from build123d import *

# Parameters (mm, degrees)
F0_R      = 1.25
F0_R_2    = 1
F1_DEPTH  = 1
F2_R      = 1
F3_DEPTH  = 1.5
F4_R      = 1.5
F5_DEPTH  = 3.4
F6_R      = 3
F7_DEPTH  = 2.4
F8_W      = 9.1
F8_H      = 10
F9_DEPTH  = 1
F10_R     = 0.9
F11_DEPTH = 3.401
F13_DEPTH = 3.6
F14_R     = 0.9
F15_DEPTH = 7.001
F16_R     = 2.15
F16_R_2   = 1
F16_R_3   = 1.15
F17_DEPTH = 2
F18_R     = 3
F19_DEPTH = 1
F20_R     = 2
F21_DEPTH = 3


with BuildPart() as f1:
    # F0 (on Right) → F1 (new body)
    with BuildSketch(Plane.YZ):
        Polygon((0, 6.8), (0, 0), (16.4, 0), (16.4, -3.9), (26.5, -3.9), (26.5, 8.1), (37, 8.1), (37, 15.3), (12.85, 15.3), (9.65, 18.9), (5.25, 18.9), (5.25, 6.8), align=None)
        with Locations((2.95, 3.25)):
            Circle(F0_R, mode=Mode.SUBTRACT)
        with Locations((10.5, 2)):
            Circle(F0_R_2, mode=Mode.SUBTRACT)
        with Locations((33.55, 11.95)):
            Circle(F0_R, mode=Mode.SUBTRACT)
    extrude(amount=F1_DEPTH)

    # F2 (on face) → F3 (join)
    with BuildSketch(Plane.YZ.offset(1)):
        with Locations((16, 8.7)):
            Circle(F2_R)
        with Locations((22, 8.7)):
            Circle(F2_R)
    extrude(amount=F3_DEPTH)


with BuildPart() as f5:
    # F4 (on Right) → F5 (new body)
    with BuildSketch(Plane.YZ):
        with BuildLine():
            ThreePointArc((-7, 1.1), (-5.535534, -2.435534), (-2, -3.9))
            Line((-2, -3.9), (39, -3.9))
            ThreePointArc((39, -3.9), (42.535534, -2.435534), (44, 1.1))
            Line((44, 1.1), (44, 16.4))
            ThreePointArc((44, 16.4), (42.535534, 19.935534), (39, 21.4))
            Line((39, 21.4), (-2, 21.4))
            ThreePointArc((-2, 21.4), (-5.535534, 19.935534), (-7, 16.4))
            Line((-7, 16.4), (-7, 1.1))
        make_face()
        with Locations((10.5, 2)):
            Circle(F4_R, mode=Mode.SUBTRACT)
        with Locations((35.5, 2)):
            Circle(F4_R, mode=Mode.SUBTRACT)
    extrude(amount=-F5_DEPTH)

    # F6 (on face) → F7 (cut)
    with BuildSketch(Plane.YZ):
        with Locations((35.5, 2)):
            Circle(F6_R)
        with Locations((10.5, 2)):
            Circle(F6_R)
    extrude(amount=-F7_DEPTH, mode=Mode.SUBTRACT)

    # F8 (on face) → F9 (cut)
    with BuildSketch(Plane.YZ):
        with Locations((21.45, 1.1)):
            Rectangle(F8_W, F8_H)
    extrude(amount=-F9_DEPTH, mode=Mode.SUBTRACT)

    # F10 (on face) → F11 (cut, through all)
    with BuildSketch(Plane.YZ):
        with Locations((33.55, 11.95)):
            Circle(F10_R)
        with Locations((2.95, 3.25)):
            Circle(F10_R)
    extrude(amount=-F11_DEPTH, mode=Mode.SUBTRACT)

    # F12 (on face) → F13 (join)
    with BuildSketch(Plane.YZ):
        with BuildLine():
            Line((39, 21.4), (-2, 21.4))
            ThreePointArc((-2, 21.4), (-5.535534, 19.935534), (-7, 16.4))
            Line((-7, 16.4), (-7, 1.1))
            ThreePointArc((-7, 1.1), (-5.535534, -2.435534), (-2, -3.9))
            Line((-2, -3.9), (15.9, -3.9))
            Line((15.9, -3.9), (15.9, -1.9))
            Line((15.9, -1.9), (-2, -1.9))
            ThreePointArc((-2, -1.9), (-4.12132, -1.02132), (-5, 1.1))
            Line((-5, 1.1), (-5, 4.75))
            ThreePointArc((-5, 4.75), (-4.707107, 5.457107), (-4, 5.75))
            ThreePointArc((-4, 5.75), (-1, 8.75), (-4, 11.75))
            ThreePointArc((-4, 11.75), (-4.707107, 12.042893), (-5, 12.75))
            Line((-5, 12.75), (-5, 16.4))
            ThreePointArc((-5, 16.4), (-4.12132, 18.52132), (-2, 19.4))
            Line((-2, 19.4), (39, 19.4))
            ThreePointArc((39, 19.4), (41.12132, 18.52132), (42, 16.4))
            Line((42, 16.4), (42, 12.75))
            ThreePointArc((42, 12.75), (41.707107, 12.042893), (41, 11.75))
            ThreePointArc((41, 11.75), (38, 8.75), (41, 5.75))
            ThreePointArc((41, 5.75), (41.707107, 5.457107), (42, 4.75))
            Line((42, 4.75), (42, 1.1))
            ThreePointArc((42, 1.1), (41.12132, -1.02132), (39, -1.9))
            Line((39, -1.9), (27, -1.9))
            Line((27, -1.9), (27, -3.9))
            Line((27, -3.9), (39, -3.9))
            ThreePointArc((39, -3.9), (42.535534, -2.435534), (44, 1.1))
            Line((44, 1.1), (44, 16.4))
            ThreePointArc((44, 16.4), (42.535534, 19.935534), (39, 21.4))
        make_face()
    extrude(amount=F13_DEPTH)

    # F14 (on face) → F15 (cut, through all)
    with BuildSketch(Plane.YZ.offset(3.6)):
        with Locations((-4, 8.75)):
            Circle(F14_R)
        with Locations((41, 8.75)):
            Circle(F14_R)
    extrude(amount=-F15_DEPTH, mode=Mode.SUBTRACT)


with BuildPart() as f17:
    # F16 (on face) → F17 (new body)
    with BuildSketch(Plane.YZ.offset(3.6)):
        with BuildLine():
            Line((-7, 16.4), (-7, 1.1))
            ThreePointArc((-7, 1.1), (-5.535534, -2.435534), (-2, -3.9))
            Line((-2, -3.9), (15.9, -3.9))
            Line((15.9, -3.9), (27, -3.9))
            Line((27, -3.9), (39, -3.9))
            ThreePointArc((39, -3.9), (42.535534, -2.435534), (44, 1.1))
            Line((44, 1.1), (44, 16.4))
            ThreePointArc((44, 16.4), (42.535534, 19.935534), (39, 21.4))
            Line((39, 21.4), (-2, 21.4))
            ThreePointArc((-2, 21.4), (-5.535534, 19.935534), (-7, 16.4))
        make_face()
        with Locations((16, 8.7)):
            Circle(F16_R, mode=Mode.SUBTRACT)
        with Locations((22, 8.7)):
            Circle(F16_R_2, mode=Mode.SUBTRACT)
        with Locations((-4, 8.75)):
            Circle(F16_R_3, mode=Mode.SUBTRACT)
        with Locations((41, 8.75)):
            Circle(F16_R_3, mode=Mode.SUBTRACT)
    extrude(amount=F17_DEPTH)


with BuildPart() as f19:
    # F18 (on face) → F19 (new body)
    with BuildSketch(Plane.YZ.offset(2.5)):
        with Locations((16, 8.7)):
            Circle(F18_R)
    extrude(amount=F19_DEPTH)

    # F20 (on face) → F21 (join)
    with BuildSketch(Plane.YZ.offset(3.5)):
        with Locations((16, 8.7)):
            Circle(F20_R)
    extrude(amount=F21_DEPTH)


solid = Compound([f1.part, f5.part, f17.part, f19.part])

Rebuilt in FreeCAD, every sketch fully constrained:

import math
import FreeCAD as App
import Part
import Sketcher

V = App.Vector


def add_polygon(sketch, points):
    """Adds a closed chain of lines whose ends are joined by coincident constraints."""
    first, n = sketch.GeometryCount, len(points)
    for a, b in zip(points, points[1:] + points[:1]):
        sketch.addGeometry(Part.LineSegment(App.Vector(*a, 0), App.Vector(*b, 0)), False)
    for i in range(n):
        sketch.addConstraint(Sketcher.Constraint("Coincident", first + i, 2, first + (i + 1) % n, 1))

doc = App.newDocument("Part")
body = doc.addObject("PartDesign::Body", "Body")

sketch1 = doc.addObject("Sketcher::SketchObject", "Sketch")
body.addObject(sketch1)
sketch1.AttachmentSupport = (doc.YZ_Plane, [""])
sketch1.MapMode = "FlatFace"
add_polygon(sketch1, [(0, 6.8), (0, 0), (16.4, 0), (16.4, -3.9), (26.5, -3.9), (26.5, 8.1), (37, 8.1), (37, 15.3), (12.8, 15.3), (9.7, 18.9), (5.2, 18.9), (5.2, 6.8)])
sketch1.addGeometry(Part.Circle(V(3, 3.2, 0), V(0, 0, 1), 1.2), False)
sketch1.addGeometry(Part.Circle(V(10.5, 2, 0), V(0, 0, 1), 1), False)
sketch1.addGeometry(Part.Circle(V(33.5, 11.9, 0), V(0, 0, 1), 1.2), False)
sketch1.addConstraint([
    Sketcher.Constraint("Vertical", 0),
    Sketcher.Constraint("Horizontal", 1),
    Sketcher.Constraint("Vertical", 2),
    Sketcher.Constraint("Horizontal", 3),
    Sketcher.Constraint("Vertical", 4),
    Sketcher.Constraint("Horizontal", 5),
    Sketcher.Constraint("Vertical", 6),
    Sketcher.Constraint("Horizontal", 7),
    Sketcher.Constraint("Horizontal", 9),
    Sketcher.Constraint("Vertical", 10),
    Sketcher.Constraint("Horizontal", 11),
    Sketcher.Constraint("Coincident", 0, 2, -1, 1),
    Sketcher.Constraint("Equal", 12, 14),
    Sketcher.Constraint("Diameter", 13, 2.0),
    Sketcher.Constraint("Diameter", 12, 2.5),
    Sketcher.Constraint("DistanceY", 4, 1, 4, 2, 12.0),
    Sketcher.Constraint("DistanceX", 1, 1, 1, 2, 16.4),
    Sketcher.Constraint("DistanceX", 3, 1, 3, 2, 10.1),
    Sketcher.Constraint("DistanceX", 5, 1, 5, 2, 10.5),
    Sketcher.Constraint("DistanceX", 9, 2, 9, 1, 4.4),
    Sketcher.Constraint("DistanceY", 0, 2, 0, 1, 6.8),
    Sketcher.Constraint("DistanceY", 2, 2, 2, 1, 3.9),
    Sketcher.Constraint("DistanceY", 6, 1, 6, 2, 7.2),
    Sketcher.Constraint("DistanceY", 10, 2, 10, 1, 12.1),
    Sketcher.Constraint("DistanceY", -1, 1, 13, 3, 2.0),
    Sketcher.Constraint("DistanceX", 13, 3, 3, 2, 16.0),
    Sketcher.Constraint("DistanceX", 7, 2, 7, 1, 24.15),
    Sketcher.Constraint("DistanceX", 11, 2, 11, 1, 5.25),
    Sketcher.Constraint("DistanceX", 12, 3, 14, 3, 30.6),
    Sketcher.Constraint("DistanceY", 12, 3, 14, 3, 8.7),
    Sketcher.Constraint("DistanceX", 12, 3, 7, 2, 9.9),
    Sketcher.Constraint("DistanceY", -1, 1, 12, 3, 3.25),
])
pad1 = doc.addObject("PartDesign::Pad", "Pad")
body.addObject(pad1)
pad1.Profile = sketch1
pad1.Length = 1

sketch2 = doc.addObject("Sketcher::SketchObject", "Sketch001")
body.addObject(sketch2)
sketch2.AttachmentSupport = (doc.YZ_Plane, [""])
sketch2.MapMode = "FlatFace"
sketch2.AttachmentOffset = App.Placement(V(0, 0, 1), App.Rotation())
sketch2.addGeometry([
    Part.Circle(V(16, 8.7, 0), V(0, 0, 1), 1),
    Part.Circle(V(22, 8.7, 0), V(0, 0, 1), 1),
], False)
sketch2.addConstraint([
    Sketcher.Constraint("Equal", 0, 1),
    Sketcher.Constraint("Horizontal", 0, 3, 1, 3),
    Sketcher.Constraint("Diameter", 0, 2.0),
    Sketcher.Constraint("DistanceX", -1, 1, 0, 3, 16.0),
    Sketcher.Constraint("DistanceX", -1, 1, 1, 3, 22.0),
    Sketcher.Constraint("DistanceY", -1, 1, 0, 3, 8.7),
])
pad2 = doc.addObject("PartDesign::Pad", "Pad001")
body.addObject(pad2)
pad2.Profile = sketch2
pad2.Length = 1.5
body2 = doc.addObject("PartDesign::Body", "Body001")

sketch3 = doc.addObject("Sketcher::SketchObject", "Sketch002")
body2.addObject(sketch3)
sketch3.AttachmentSupport = (doc.getObject("YZ_Plane001"), [""])
sketch3.MapMode = "FlatFace"
sketch3.addGeometry([
    Part.ArcOfCircle(Part.Circle(V(-2, 1.1, 0), V(0, 0, 1), 5), math.radians(180), math.radians(270)),
    Part.LineSegment(V(-2, -3.9, 0), V(39, -3.9, 0)),
    Part.ArcOfCircle(Part.Circle(V(39, 1.1, 0), V(0, 0, 1), 5), math.radians(-90), math.radians(0)),
    Part.LineSegment(V(44, 1.1, 0), V(44, 16.4, 0)),
    Part.ArcOfCircle(Part.Circle(V(39, 16.4, 0), V(0, 0, 1), 5), math.radians(0), math.radians(90)),
    Part.LineSegment(V(39, 21.4, 0), V(-2, 21.4, 0)),
    Part.ArcOfCircle(Part.Circle(V(-2, 16.4, 0), V(0, 0, 1), 5), math.radians(90), math.radians(180)),
    Part.LineSegment(V(-7, 16.4, 0), V(-7, 1.1, 0)),
    Part.Circle(V(10.5, 2, 0), V(0, 0, 1), 1.5),
    Part.Circle(V(35.5, 2, 0), V(0, 0, 1), 1.5),
], False)
sketch3.addConstraint([
    Sketcher.Constraint("Tangent", 0, 2, 1, 1),
    Sketcher.Constraint("Tangent", 1, 2, 2, 1),
    Sketcher.Constraint("Tangent", 2, 2, 3, 1),
    Sketcher.Constraint("Tangent", 3, 2, 4, 1),
    Sketcher.Constraint("Tangent", 4, 2, 5, 1),
    Sketcher.Constraint("Tangent", 5, 2, 6, 1),
    Sketcher.Constraint("Tangent", 6, 2, 7, 1),
    Sketcher.Constraint("Tangent", 7, 2, 0, 1),
    Sketcher.Constraint("Horizontal", 1),
    Sketcher.Constraint("Vertical", 3),
    Sketcher.Constraint("Horizontal", 5),
    Sketcher.Constraint("Vertical", 7),
    Sketcher.Constraint("Equal", 0, 2),
    Sketcher.Constraint("Equal", 2, 4),
    Sketcher.Constraint("Equal", 4, 6),
    Sketcher.Constraint("Equal", 8, 9),
    Sketcher.Constraint("Horizontal", 8, 3, 9, 3),
    Sketcher.Constraint("Diameter", 8, 3.0),
    Sketcher.Constraint("Radius", 0, 5.0),
    Sketcher.Constraint("DistanceX", 1, 1, 1, 2, 41.0),
    Sketcher.Constraint("DistanceY", 3, 1, 3, 2, 15.3),
    Sketcher.Constraint("DistanceX", 0, 3, -1, 1, 2.0),
    Sketcher.Constraint("DistanceY", -1, 1, 8, 3, 2.0),
    Sketcher.Constraint("DistanceX", 8, 3, 9, 3, 25.0),
    Sketcher.Constraint("DistanceY", -1, 1, 0, 3, 1.1),
    Sketcher.Constraint("DistanceX", -1, 1, 8, 3, 10.5),
])
pad3 = doc.addObject("PartDesign::Pad", "Pad002")
body2.addObject(pad3)
pad3.Profile = sketch3
pad3.Length = 3.4
pad3.Reversed = True

sketch4 = doc.addObject("Sketcher::SketchObject", "Sketch003")
body2.addObject(sketch4)
sketch4.AttachmentSupport = (doc.getObject("YZ_Plane001"), [""])
sketch4.MapMode = "FlatFace"
sketch4.addGeometry([
    Part.Circle(V(35.5, 2, 0), V(0, 0, 1), 3),
    Part.Circle(V(10.5, 2, 0), V(0, 0, 1), 3),
], False)
sketch4.addConstraint([
    Sketcher.Constraint("Equal", 0, 1),
    Sketcher.Constraint("Horizontal", 0, 3, 1, 3),
    Sketcher.Constraint("Diameter", 0, 6.0),
    Sketcher.Constraint("DistanceY", -1, 1, 0, 3, 2.0),
    Sketcher.Constraint("DistanceX", 1, 3, 0, 3, 25.0),
    Sketcher.Constraint("DistanceX", -1, 1, 0, 3, 35.5),
])
pocket1 = doc.addObject("PartDesign::Pocket", "Pocket")
body2.addObject(pocket1)
pocket1.Profile = sketch4
pocket1.Length = 2.4

sketch5 = doc.addObject("Sketcher::SketchObject", "Sketch004")
body2.addObject(sketch5)
sketch5.AttachmentSupport = (doc.getObject("YZ_Plane001"), [""])
sketch5.MapMode = "FlatFace"
add_polygon(sketch5, [(17, 6), (17, -4), (26, -4), (26, 6)])
sketch5.addConstraint([
    Sketcher.Constraint("Vertical", 0),
    Sketcher.Constraint("Horizontal", 1),
    Sketcher.Constraint("Vertical", 2),
    Sketcher.Constraint("Horizontal", 3),
    Sketcher.Constraint("DistanceY", 0, 2, 0, 1, 10.0),
    Sketcher.Constraint("DistanceX", 1, 1, 1, 2, 9.1),
    Sketcher.Constraint("DistanceX", -1, 1, 1, 2, 26.0),
    Sketcher.Constraint("DistanceY", 0, 2, -1, 1, 3.9),
])
pocket2 = doc.addObject("PartDesign::Pocket", "Pocket001")
body2.addObject(pocket2)
pocket2.Profile = sketch5
pocket2.Length = 1

sketch6 = doc.addObject("Sketcher::SketchObject", "Sketch005")
body2.addObject(sketch6)
sketch6.AttachmentSupport = (doc.getObject("YZ_Plane001"), [""])
sketch6.MapMode = "FlatFace"
sketch6.addGeometry([
    Part.Circle(V(33.5, 11.9, 0), V(0, 0, 1), 0.9),
    Part.Circle(V(3, 3.2, 0), V(0, 0, 1), 0.9),
], False)
sketch6.addConstraint([
    Sketcher.Constraint("Equal", 0, 1),
    Sketcher.Constraint("Diameter", 0, 1.8),
    Sketcher.Constraint("DistanceX", 1, 3, 0, 3, 30.6),
    Sketcher.Constraint("DistanceY", 1, 3, 0, 3, 8.7),
    Sketcher.Constraint("DistanceX", -1, 1, 0, 3, 33.55),
    Sketcher.Constraint("DistanceY", -1, 1, 0, 3, 11.95),
])
pocket3 = doc.addObject("PartDesign::Pocket", "Pocket002")
body2.addObject(pocket3)
pocket3.Profile = sketch6
pocket3.Type = "ThroughAll"

sketch7 = doc.addObject("Sketcher::SketchObject", "Sketch006")
body2.addObject(sketch7)
sketch7.AttachmentSupport = (doc.getObject("YZ_Plane001"), [""])
sketch7.MapMode = "FlatFace"
sketch7.addGeometry([
    Part.LineSegment(V(39, 21.4, 0), V(-2, 21.4, 0)),
    Part.ArcOfCircle(Part.Circle(V(-2, 16.4, 0), V(0, 0, 1), 5), math.radians(90), math.radians(180)),
    Part.LineSegment(V(-7, 16.4, 0), V(-7, 1.1, 0)),
    Part.ArcOfCircle(Part.Circle(V(-2, 1.1, 0), V(0, 0, 1), 5), math.radians(180), math.radians(270)),
    Part.LineSegment(V(-2, -3.9, 0), V(15.9, -3.9, 0)),
    Part.LineSegment(V(15.9, -3.9, 0), V(15.9, -1.9, 0)),
    Part.LineSegment(V(15.9, -1.9, 0), V(-2, -1.9, 0)),
    Part.ArcOfCircle(Part.Circle(V(-2, 1.1, 0), V(0, 0, 1), 3), math.radians(-180), math.radians(-90)),
    Part.LineSegment(V(-5, 1.1, 0), V(-5, 4.8, 0)),
    Part.ArcOfCircle(Part.Circle(V(-4, 4.8, 0), V(0, 0, 1), 1), math.radians(90), math.radians(180)),
    Part.ArcOfCircle(Part.Circle(V(-4, 8.8, 0), V(0, 0, 1), 3), math.radians(-90), math.radians(90)),
    Part.ArcOfCircle(Part.Circle(V(-4, 12.7, 0), V(0, 0, 1), 1), math.radians(180), math.radians(270)),
    Part.LineSegment(V(-5, 12.8, 0), V(-5, 16.4, 0)),
    Part.ArcOfCircle(Part.Circle(V(-2, 16.4, 0), V(0, 0, 1), 3), math.radians(90), math.radians(180)),
    Part.LineSegment(V(-2, 19.4, 0), V(39, 19.4, 0)),
    Part.ArcOfCircle(Part.Circle(V(39, 16.4, 0), V(0, 0, 1), 3), math.radians(0), math.radians(90)),
    Part.LineSegment(V(42, 16.4, 0), V(42, 12.8, 0)),
    Part.ArcOfCircle(Part.Circle(V(41, 12.7, 0), V(0, 0, 1), 1), math.radians(-90), math.radians(0)),
    Part.ArcOfCircle(Part.Circle(V(41, 8.8, 0), V(0, 0, 1), 3), math.radians(90), math.radians(270)),
    Part.ArcOfCircle(Part.Circle(V(41, 4.8, 0), V(0, 0, 1), 1), math.radians(0), math.radians(90)),
    Part.LineSegment(V(42, 4.8, 0), V(42, 1.1, 0)),
    Part.ArcOfCircle(Part.Circle(V(39, 1.1, 0), V(0, 0, 1), 3), math.radians(-90), math.radians(0)),
    Part.LineSegment(V(39, -1.9, 0), V(27, -1.9, 0)),
    Part.LineSegment(V(27, -1.9, 0), V(27, -3.9, 0)),
    Part.LineSegment(V(27, -3.9, 0), V(39, -3.9, 0)),
    Part.ArcOfCircle(Part.Circle(V(39, 1.1, 0), V(0, 0, 1), 5), math.radians(-90), math.radians(0)),
    Part.LineSegment(V(44, 1.1, 0), V(44, 16.4, 0)),
    Part.ArcOfCircle(Part.Circle(V(39, 16.4, 0), V(0, 0, 1), 5), math.radians(0), math.radians(90)),
], False)
sketch7.addConstraint([
    Sketcher.Constraint("Tangent", 0, 2, 1, 1),
    Sketcher.Constraint("Tangent", 1, 2, 2, 1),
    Sketcher.Constraint("Tangent", 2, 2, 3, 1),
    Sketcher.Constraint("Tangent", 3, 2, 4, 1),
    Sketcher.Constraint("Coincident", 4, 2, 5, 1),
    Sketcher.Constraint("Coincident", 5, 2, 6, 1),
    Sketcher.Constraint("Tangent", 6, 2, 7, 2),
    Sketcher.Constraint("Tangent", 7, 1, 8, 1),
    Sketcher.Constraint("Tangent", 8, 2, 9, 2),
    Sketcher.Constraint("Tangent", 9, 1, 10, 1),
    Sketcher.Constraint("Tangent", 10, 2, 11, 2),
    Sketcher.Constraint("Tangent", 11, 1, 12, 1),
    Sketcher.Constraint("Tangent", 12, 2, 13, 2),
    Sketcher.Constraint("Tangent", 13, 1, 14, 1),
    Sketcher.Constraint("Tangent", 14, 2, 15, 2),
    Sketcher.Constraint("Tangent", 15, 1, 16, 1),
    Sketcher.Constraint("Tangent", 16, 2, 17, 2),
    Sketcher.Constraint("Tangent", 17, 1, 18, 1),
    Sketcher.Constraint("Tangent", 18, 2, 19, 2),
    Sketcher.Constraint("Tangent", 19, 1, 20, 1),
    Sketcher.Constraint("Tangent", 20, 2, 21, 2),
    Sketcher.Constraint("Tangent", 21, 1, 22, 1),
    Sketcher.Constraint("Coincident", 22, 2, 23, 1),
    Sketcher.Constraint("Coincident", 23, 2, 24, 1),
    Sketcher.Constraint("Tangent", 24, 2, 25, 1),
    Sketcher.Constraint("Tangent", 25, 2, 26, 1),
    Sketcher.Constraint("Tangent", 26, 2, 27, 1),
    Sketcher.Constraint("Tangent", 27, 2, 0, 1),
    Sketcher.Constraint("Horizontal", 0),
    Sketcher.Constraint("Vertical", 2),
    Sketcher.Constraint("Horizontal", 4),
    Sketcher.Constraint("Vertical", 5),
    Sketcher.Constraint("Horizontal", 6),
    Sketcher.Constraint("Vertical", 8),
    Sketcher.Constraint("Vertical", 12),
    Sketcher.Constraint("Horizontal", 14),
    Sketcher.Constraint("Vertical", 16),
    Sketcher.Constraint("Vertical", 20),
    Sketcher.Constraint("Horizontal", 22),
    Sketcher.Constraint("Vertical", 23),
    Sketcher.Constraint("Horizontal", 24),
    Sketcher.Constraint("Vertical", 26),
    Sketcher.Constraint("Coincident", 7, 3, 3, 3),
    Sketcher.Constraint("Coincident", 13, 3, 1, 3),
    Sketcher.Constraint("Coincident", 25, 3, 21, 3),
    Sketcher.Constraint("Coincident", 27, 3, 15, 3),
    Sketcher.Constraint("Equal", 1, 3),
    Sketcher.Constraint("Equal", 7, 10),
    Sketcher.Constraint("Equal", 9, 11),
    Sketcher.Constraint("Equal", 10, 13),
    Sketcher.Constraint("Equal", 13, 15),
    Sketcher.Constraint("Equal", 11, 17),
    Sketcher.Constraint("Equal", 15, 18),
    Sketcher.Constraint("Equal", 17, 19),
    Sketcher.Constraint("Equal", 18, 21),
    Sketcher.Constraint("Equal", 3, 25),
    Sketcher.Constraint("Horizontal", 11, 3, 17, 3),
    Sketcher.Constraint("Horizontal", 7, 3, 21, 3),
    Sketcher.Constraint("Vertical", 9, 3, 10, 3),
    Sketcher.Constraint("Vertical", 17, 3, 18, 3),
    Sketcher.Constraint("Equal", 8, 12),
    Sketcher.Constraint("Radius", 1, 5.0),
    Sketcher.Constraint("Radius", 7, 3.000001),
    Sketcher.Constraint("Radius", 9, 0.999999),
    Sketcher.Constraint("DistanceX", 0, 2, 0, 1, 41.0),
    Sketcher.Constraint("DistanceX", 22, 2, 22, 1, 12.0),
    Sketcher.Constraint("DistanceX", 4, 1, 4, 2, 17.9),
    Sketcher.Constraint("DistanceY", 2, 2, 2, 1, 15.3),
    Sketcher.Constraint("DistanceX", 1, 3, -1, 1, 2.0),
    Sketcher.Constraint("DistanceY", -1, 1, 1, 3, 16.4),
])
pad4 = doc.addObject("PartDesign::Pad", "Pad003")
body2.addObject(pad4)
pad4.Profile = sketch7
pad4.Length = 3.6

sketch8 = doc.addObject("Sketcher::SketchObject", "Sketch007")
body2.addObject(sketch8)
sketch8.AttachmentSupport = (doc.getObject("YZ_Plane001"), [""])
sketch8.MapMode = "FlatFace"
sketch8.AttachmentOffset = App.Placement(V(0, 0, 3.6), App.Rotation())
sketch8.addGeometry([
    Part.Circle(V(-4, 8.8, 0), V(0, 0, 1), 0.9),
    Part.Circle(V(41, 8.8, 0), V(0, 0, 1), 0.9),
], False)
sketch8.addConstraint([
    Sketcher.Constraint("Equal", 0, 1),
    Sketcher.Constraint("Horizontal", 0, 3, 1, 3),
    Sketcher.Constraint("Diameter", 0, 1.8),
    Sketcher.Constraint("DistanceX", 0, 3, -1, 1, 4.0),
    Sketcher.Constraint("DistanceX", -1, 1, 1, 3, 41.0),
    Sketcher.Constraint("DistanceY", -1, 1, 0, 3, 8.75),
])
pocket4 = doc.addObject("PartDesign::Pocket", "Pocket003")
body2.addObject(pocket4)
pocket4.Profile = sketch8
pocket4.Type = "ThroughAll"
body3 = doc.addObject("PartDesign::Body", "Body002")

sketch9 = doc.addObject("Sketcher::SketchObject", "Sketch008")
body3.addObject(sketch9)
sketch9.AttachmentSupport = (doc.getObject("YZ_Plane002"), [""])
sketch9.MapMode = "FlatFace"
sketch9.AttachmentOffset = App.Placement(V(0, 0, 3.6), App.Rotation())
sketch9.addGeometry([
    Part.LineSegment(V(-7, 16.4, 0), V(-7, 1.1, 0)),
    Part.ArcOfCircle(Part.Circle(V(-2, 1.1, 0), V(0, 0, 1), 5), math.radians(180), math.radians(270)),
    Part.LineSegment(V(-2, -3.9, 0), V(39, -3.9, 0)),
    Part.ArcOfCircle(Part.Circle(V(39, 1.1, 0), V(0, 0, 1), 5), math.radians(-90), math.radians(0)),
    Part.LineSegment(V(44, 1.1, 0), V(44, 16.4, 0)),
    Part.ArcOfCircle(Part.Circle(V(39, 16.4, 0), V(0, 0, 1), 5), math.radians(0), math.radians(90)),
    Part.LineSegment(V(39, 21.4, 0), V(-2, 21.4, 0)),
    Part.ArcOfCircle(Part.Circle(V(-2, 16.4, 0), V(0, 0, 1), 5), math.radians(90), math.radians(180)),
    Part.Circle(V(-4, 8.8, 0), V(0, 0, 1), 1.1),
    Part.Circle(V(16, 8.7, 0), V(0, 0, 1), 2.1),
    Part.Circle(V(22, 8.7, 0), V(0, 0, 1), 1),
    Part.Circle(V(41, 8.8, 0), V(0, 0, 1), 1.1),
], False)
sketch9.addConstraint([
    Sketcher.Constraint("Tangent", 0, 2, 1, 1),
    Sketcher.Constraint("Tangent", 1, 2, 2, 1),
    Sketcher.Constraint("Tangent", 2, 2, 3, 1),
    Sketcher.Constraint("Tangent", 3, 2, 4, 1),
    Sketcher.Constraint("Tangent", 4, 2, 5, 1),
    Sketcher.Constraint("Tangent", 5, 2, 6, 1),
    Sketcher.Constraint("Tangent", 6, 2, 7, 1),
    Sketcher.Constraint("Tangent", 7, 2, 0, 1),
    Sketcher.Constraint("Vertical", 0),
    Sketcher.Constraint("Horizontal", 2),
    Sketcher.Constraint("Vertical", 4),
    Sketcher.Constraint("Horizontal", 6),
    Sketcher.Constraint("Equal", 1, 3),
    Sketcher.Constraint("Equal", 3, 5),
    Sketcher.Constraint("Equal", 5, 7),
    Sketcher.Constraint("Equal", 8, 11),
    Sketcher.Constraint("Horizontal", 9, 3, 10, 3),
    Sketcher.Constraint("Horizontal", 8, 3, 11, 3),
    Sketcher.Constraint("Diameter", 10, 2.0),
    Sketcher.Constraint("Radius", 1, 5.0),
    Sketcher.Constraint("Diameter", 8, 2.3),
    Sketcher.Constraint("Diameter", 9, 4.3),
    Sketcher.Constraint("DistanceX", 2, 1, 2, 2, 41.0),
    Sketcher.Constraint("DistanceY", 0, 2, 0, 1, 15.3),
    Sketcher.Constraint("DistanceX", 1, 3, -1, 1, 2.0),
    Sketcher.Constraint("DistanceX", 8, 3, -1, 1, 4.0),
    Sketcher.Constraint("DistanceX", -1, 1, 9, 3, 16.0),
    Sketcher.Constraint("DistanceX", -1, 1, 10, 3, 22.0),
    Sketcher.Constraint("DistanceX", -1, 1, 11, 3, 41.0),
    Sketcher.Constraint("DistanceY", -1, 1, 1, 3, 1.1),
    Sketcher.Constraint("DistanceY", -1, 1, 9, 3, 8.7),
    Sketcher.Constraint("DistanceY", -1, 1, 8, 3, 8.75),
])
pad5 = doc.addObject("PartDesign::Pad", "Pad004")
body3.addObject(pad5)
pad5.Profile = sketch9
pad5.Length = 2
body4 = doc.addObject("PartDesign::Body", "Body003")

sketch10 = doc.addObject("Sketcher::SketchObject", "Sketch009")
body4.addObject(sketch10)
sketch10.AttachmentSupport = (doc.getObject("YZ_Plane003"), [""])
sketch10.MapMode = "FlatFace"
sketch10.AttachmentOffset = App.Placement(V(0, 0, 2.5), App.Rotation())
sketch10.addGeometry(Part.Circle(V(16, 8.7, 0), V(0, 0, 1), 3), False)
sketch10.addConstraint([
    Sketcher.Constraint("Diameter", 0, 6.0),
    Sketcher.Constraint("DistanceX", -1, 1, 0, 3, 16.0),
    Sketcher.Constraint("DistanceY", -1, 1, 0, 3, 8.7),
])
pad6 = doc.addObject("PartDesign::Pad", "Pad005")
body4.addObject(pad6)
pad6.Profile = sketch10
pad6.Length = 1

sketch11 = doc.addObject("Sketcher::SketchObject", "Sketch010")
body4.addObject(sketch11)
sketch11.AttachmentSupport = (doc.getObject("YZ_Plane003"), [""])
sketch11.MapMode = "FlatFace"
sketch11.AttachmentOffset = App.Placement(V(0, 0, 3.5), App.Rotation())
sketch11.addGeometry(Part.Circle(V(16, 8.7, 0), V(0, 0, 1), 2), False)
sketch11.addConstraint([
    Sketcher.Constraint("Diameter", 0, 4.0),
    Sketcher.Constraint("DistanceX", -1, 1, 0, 3, 16.0),
    Sketcher.Constraint("DistanceY", -1, 1, 0, 3, 8.7),
])
pad7 = doc.addObject("PartDesign::Pad", "Pad006")
body4.addObject(pad7)
pad7.Profile = sketch11
pad7.Length = 3

doc.recompute()
